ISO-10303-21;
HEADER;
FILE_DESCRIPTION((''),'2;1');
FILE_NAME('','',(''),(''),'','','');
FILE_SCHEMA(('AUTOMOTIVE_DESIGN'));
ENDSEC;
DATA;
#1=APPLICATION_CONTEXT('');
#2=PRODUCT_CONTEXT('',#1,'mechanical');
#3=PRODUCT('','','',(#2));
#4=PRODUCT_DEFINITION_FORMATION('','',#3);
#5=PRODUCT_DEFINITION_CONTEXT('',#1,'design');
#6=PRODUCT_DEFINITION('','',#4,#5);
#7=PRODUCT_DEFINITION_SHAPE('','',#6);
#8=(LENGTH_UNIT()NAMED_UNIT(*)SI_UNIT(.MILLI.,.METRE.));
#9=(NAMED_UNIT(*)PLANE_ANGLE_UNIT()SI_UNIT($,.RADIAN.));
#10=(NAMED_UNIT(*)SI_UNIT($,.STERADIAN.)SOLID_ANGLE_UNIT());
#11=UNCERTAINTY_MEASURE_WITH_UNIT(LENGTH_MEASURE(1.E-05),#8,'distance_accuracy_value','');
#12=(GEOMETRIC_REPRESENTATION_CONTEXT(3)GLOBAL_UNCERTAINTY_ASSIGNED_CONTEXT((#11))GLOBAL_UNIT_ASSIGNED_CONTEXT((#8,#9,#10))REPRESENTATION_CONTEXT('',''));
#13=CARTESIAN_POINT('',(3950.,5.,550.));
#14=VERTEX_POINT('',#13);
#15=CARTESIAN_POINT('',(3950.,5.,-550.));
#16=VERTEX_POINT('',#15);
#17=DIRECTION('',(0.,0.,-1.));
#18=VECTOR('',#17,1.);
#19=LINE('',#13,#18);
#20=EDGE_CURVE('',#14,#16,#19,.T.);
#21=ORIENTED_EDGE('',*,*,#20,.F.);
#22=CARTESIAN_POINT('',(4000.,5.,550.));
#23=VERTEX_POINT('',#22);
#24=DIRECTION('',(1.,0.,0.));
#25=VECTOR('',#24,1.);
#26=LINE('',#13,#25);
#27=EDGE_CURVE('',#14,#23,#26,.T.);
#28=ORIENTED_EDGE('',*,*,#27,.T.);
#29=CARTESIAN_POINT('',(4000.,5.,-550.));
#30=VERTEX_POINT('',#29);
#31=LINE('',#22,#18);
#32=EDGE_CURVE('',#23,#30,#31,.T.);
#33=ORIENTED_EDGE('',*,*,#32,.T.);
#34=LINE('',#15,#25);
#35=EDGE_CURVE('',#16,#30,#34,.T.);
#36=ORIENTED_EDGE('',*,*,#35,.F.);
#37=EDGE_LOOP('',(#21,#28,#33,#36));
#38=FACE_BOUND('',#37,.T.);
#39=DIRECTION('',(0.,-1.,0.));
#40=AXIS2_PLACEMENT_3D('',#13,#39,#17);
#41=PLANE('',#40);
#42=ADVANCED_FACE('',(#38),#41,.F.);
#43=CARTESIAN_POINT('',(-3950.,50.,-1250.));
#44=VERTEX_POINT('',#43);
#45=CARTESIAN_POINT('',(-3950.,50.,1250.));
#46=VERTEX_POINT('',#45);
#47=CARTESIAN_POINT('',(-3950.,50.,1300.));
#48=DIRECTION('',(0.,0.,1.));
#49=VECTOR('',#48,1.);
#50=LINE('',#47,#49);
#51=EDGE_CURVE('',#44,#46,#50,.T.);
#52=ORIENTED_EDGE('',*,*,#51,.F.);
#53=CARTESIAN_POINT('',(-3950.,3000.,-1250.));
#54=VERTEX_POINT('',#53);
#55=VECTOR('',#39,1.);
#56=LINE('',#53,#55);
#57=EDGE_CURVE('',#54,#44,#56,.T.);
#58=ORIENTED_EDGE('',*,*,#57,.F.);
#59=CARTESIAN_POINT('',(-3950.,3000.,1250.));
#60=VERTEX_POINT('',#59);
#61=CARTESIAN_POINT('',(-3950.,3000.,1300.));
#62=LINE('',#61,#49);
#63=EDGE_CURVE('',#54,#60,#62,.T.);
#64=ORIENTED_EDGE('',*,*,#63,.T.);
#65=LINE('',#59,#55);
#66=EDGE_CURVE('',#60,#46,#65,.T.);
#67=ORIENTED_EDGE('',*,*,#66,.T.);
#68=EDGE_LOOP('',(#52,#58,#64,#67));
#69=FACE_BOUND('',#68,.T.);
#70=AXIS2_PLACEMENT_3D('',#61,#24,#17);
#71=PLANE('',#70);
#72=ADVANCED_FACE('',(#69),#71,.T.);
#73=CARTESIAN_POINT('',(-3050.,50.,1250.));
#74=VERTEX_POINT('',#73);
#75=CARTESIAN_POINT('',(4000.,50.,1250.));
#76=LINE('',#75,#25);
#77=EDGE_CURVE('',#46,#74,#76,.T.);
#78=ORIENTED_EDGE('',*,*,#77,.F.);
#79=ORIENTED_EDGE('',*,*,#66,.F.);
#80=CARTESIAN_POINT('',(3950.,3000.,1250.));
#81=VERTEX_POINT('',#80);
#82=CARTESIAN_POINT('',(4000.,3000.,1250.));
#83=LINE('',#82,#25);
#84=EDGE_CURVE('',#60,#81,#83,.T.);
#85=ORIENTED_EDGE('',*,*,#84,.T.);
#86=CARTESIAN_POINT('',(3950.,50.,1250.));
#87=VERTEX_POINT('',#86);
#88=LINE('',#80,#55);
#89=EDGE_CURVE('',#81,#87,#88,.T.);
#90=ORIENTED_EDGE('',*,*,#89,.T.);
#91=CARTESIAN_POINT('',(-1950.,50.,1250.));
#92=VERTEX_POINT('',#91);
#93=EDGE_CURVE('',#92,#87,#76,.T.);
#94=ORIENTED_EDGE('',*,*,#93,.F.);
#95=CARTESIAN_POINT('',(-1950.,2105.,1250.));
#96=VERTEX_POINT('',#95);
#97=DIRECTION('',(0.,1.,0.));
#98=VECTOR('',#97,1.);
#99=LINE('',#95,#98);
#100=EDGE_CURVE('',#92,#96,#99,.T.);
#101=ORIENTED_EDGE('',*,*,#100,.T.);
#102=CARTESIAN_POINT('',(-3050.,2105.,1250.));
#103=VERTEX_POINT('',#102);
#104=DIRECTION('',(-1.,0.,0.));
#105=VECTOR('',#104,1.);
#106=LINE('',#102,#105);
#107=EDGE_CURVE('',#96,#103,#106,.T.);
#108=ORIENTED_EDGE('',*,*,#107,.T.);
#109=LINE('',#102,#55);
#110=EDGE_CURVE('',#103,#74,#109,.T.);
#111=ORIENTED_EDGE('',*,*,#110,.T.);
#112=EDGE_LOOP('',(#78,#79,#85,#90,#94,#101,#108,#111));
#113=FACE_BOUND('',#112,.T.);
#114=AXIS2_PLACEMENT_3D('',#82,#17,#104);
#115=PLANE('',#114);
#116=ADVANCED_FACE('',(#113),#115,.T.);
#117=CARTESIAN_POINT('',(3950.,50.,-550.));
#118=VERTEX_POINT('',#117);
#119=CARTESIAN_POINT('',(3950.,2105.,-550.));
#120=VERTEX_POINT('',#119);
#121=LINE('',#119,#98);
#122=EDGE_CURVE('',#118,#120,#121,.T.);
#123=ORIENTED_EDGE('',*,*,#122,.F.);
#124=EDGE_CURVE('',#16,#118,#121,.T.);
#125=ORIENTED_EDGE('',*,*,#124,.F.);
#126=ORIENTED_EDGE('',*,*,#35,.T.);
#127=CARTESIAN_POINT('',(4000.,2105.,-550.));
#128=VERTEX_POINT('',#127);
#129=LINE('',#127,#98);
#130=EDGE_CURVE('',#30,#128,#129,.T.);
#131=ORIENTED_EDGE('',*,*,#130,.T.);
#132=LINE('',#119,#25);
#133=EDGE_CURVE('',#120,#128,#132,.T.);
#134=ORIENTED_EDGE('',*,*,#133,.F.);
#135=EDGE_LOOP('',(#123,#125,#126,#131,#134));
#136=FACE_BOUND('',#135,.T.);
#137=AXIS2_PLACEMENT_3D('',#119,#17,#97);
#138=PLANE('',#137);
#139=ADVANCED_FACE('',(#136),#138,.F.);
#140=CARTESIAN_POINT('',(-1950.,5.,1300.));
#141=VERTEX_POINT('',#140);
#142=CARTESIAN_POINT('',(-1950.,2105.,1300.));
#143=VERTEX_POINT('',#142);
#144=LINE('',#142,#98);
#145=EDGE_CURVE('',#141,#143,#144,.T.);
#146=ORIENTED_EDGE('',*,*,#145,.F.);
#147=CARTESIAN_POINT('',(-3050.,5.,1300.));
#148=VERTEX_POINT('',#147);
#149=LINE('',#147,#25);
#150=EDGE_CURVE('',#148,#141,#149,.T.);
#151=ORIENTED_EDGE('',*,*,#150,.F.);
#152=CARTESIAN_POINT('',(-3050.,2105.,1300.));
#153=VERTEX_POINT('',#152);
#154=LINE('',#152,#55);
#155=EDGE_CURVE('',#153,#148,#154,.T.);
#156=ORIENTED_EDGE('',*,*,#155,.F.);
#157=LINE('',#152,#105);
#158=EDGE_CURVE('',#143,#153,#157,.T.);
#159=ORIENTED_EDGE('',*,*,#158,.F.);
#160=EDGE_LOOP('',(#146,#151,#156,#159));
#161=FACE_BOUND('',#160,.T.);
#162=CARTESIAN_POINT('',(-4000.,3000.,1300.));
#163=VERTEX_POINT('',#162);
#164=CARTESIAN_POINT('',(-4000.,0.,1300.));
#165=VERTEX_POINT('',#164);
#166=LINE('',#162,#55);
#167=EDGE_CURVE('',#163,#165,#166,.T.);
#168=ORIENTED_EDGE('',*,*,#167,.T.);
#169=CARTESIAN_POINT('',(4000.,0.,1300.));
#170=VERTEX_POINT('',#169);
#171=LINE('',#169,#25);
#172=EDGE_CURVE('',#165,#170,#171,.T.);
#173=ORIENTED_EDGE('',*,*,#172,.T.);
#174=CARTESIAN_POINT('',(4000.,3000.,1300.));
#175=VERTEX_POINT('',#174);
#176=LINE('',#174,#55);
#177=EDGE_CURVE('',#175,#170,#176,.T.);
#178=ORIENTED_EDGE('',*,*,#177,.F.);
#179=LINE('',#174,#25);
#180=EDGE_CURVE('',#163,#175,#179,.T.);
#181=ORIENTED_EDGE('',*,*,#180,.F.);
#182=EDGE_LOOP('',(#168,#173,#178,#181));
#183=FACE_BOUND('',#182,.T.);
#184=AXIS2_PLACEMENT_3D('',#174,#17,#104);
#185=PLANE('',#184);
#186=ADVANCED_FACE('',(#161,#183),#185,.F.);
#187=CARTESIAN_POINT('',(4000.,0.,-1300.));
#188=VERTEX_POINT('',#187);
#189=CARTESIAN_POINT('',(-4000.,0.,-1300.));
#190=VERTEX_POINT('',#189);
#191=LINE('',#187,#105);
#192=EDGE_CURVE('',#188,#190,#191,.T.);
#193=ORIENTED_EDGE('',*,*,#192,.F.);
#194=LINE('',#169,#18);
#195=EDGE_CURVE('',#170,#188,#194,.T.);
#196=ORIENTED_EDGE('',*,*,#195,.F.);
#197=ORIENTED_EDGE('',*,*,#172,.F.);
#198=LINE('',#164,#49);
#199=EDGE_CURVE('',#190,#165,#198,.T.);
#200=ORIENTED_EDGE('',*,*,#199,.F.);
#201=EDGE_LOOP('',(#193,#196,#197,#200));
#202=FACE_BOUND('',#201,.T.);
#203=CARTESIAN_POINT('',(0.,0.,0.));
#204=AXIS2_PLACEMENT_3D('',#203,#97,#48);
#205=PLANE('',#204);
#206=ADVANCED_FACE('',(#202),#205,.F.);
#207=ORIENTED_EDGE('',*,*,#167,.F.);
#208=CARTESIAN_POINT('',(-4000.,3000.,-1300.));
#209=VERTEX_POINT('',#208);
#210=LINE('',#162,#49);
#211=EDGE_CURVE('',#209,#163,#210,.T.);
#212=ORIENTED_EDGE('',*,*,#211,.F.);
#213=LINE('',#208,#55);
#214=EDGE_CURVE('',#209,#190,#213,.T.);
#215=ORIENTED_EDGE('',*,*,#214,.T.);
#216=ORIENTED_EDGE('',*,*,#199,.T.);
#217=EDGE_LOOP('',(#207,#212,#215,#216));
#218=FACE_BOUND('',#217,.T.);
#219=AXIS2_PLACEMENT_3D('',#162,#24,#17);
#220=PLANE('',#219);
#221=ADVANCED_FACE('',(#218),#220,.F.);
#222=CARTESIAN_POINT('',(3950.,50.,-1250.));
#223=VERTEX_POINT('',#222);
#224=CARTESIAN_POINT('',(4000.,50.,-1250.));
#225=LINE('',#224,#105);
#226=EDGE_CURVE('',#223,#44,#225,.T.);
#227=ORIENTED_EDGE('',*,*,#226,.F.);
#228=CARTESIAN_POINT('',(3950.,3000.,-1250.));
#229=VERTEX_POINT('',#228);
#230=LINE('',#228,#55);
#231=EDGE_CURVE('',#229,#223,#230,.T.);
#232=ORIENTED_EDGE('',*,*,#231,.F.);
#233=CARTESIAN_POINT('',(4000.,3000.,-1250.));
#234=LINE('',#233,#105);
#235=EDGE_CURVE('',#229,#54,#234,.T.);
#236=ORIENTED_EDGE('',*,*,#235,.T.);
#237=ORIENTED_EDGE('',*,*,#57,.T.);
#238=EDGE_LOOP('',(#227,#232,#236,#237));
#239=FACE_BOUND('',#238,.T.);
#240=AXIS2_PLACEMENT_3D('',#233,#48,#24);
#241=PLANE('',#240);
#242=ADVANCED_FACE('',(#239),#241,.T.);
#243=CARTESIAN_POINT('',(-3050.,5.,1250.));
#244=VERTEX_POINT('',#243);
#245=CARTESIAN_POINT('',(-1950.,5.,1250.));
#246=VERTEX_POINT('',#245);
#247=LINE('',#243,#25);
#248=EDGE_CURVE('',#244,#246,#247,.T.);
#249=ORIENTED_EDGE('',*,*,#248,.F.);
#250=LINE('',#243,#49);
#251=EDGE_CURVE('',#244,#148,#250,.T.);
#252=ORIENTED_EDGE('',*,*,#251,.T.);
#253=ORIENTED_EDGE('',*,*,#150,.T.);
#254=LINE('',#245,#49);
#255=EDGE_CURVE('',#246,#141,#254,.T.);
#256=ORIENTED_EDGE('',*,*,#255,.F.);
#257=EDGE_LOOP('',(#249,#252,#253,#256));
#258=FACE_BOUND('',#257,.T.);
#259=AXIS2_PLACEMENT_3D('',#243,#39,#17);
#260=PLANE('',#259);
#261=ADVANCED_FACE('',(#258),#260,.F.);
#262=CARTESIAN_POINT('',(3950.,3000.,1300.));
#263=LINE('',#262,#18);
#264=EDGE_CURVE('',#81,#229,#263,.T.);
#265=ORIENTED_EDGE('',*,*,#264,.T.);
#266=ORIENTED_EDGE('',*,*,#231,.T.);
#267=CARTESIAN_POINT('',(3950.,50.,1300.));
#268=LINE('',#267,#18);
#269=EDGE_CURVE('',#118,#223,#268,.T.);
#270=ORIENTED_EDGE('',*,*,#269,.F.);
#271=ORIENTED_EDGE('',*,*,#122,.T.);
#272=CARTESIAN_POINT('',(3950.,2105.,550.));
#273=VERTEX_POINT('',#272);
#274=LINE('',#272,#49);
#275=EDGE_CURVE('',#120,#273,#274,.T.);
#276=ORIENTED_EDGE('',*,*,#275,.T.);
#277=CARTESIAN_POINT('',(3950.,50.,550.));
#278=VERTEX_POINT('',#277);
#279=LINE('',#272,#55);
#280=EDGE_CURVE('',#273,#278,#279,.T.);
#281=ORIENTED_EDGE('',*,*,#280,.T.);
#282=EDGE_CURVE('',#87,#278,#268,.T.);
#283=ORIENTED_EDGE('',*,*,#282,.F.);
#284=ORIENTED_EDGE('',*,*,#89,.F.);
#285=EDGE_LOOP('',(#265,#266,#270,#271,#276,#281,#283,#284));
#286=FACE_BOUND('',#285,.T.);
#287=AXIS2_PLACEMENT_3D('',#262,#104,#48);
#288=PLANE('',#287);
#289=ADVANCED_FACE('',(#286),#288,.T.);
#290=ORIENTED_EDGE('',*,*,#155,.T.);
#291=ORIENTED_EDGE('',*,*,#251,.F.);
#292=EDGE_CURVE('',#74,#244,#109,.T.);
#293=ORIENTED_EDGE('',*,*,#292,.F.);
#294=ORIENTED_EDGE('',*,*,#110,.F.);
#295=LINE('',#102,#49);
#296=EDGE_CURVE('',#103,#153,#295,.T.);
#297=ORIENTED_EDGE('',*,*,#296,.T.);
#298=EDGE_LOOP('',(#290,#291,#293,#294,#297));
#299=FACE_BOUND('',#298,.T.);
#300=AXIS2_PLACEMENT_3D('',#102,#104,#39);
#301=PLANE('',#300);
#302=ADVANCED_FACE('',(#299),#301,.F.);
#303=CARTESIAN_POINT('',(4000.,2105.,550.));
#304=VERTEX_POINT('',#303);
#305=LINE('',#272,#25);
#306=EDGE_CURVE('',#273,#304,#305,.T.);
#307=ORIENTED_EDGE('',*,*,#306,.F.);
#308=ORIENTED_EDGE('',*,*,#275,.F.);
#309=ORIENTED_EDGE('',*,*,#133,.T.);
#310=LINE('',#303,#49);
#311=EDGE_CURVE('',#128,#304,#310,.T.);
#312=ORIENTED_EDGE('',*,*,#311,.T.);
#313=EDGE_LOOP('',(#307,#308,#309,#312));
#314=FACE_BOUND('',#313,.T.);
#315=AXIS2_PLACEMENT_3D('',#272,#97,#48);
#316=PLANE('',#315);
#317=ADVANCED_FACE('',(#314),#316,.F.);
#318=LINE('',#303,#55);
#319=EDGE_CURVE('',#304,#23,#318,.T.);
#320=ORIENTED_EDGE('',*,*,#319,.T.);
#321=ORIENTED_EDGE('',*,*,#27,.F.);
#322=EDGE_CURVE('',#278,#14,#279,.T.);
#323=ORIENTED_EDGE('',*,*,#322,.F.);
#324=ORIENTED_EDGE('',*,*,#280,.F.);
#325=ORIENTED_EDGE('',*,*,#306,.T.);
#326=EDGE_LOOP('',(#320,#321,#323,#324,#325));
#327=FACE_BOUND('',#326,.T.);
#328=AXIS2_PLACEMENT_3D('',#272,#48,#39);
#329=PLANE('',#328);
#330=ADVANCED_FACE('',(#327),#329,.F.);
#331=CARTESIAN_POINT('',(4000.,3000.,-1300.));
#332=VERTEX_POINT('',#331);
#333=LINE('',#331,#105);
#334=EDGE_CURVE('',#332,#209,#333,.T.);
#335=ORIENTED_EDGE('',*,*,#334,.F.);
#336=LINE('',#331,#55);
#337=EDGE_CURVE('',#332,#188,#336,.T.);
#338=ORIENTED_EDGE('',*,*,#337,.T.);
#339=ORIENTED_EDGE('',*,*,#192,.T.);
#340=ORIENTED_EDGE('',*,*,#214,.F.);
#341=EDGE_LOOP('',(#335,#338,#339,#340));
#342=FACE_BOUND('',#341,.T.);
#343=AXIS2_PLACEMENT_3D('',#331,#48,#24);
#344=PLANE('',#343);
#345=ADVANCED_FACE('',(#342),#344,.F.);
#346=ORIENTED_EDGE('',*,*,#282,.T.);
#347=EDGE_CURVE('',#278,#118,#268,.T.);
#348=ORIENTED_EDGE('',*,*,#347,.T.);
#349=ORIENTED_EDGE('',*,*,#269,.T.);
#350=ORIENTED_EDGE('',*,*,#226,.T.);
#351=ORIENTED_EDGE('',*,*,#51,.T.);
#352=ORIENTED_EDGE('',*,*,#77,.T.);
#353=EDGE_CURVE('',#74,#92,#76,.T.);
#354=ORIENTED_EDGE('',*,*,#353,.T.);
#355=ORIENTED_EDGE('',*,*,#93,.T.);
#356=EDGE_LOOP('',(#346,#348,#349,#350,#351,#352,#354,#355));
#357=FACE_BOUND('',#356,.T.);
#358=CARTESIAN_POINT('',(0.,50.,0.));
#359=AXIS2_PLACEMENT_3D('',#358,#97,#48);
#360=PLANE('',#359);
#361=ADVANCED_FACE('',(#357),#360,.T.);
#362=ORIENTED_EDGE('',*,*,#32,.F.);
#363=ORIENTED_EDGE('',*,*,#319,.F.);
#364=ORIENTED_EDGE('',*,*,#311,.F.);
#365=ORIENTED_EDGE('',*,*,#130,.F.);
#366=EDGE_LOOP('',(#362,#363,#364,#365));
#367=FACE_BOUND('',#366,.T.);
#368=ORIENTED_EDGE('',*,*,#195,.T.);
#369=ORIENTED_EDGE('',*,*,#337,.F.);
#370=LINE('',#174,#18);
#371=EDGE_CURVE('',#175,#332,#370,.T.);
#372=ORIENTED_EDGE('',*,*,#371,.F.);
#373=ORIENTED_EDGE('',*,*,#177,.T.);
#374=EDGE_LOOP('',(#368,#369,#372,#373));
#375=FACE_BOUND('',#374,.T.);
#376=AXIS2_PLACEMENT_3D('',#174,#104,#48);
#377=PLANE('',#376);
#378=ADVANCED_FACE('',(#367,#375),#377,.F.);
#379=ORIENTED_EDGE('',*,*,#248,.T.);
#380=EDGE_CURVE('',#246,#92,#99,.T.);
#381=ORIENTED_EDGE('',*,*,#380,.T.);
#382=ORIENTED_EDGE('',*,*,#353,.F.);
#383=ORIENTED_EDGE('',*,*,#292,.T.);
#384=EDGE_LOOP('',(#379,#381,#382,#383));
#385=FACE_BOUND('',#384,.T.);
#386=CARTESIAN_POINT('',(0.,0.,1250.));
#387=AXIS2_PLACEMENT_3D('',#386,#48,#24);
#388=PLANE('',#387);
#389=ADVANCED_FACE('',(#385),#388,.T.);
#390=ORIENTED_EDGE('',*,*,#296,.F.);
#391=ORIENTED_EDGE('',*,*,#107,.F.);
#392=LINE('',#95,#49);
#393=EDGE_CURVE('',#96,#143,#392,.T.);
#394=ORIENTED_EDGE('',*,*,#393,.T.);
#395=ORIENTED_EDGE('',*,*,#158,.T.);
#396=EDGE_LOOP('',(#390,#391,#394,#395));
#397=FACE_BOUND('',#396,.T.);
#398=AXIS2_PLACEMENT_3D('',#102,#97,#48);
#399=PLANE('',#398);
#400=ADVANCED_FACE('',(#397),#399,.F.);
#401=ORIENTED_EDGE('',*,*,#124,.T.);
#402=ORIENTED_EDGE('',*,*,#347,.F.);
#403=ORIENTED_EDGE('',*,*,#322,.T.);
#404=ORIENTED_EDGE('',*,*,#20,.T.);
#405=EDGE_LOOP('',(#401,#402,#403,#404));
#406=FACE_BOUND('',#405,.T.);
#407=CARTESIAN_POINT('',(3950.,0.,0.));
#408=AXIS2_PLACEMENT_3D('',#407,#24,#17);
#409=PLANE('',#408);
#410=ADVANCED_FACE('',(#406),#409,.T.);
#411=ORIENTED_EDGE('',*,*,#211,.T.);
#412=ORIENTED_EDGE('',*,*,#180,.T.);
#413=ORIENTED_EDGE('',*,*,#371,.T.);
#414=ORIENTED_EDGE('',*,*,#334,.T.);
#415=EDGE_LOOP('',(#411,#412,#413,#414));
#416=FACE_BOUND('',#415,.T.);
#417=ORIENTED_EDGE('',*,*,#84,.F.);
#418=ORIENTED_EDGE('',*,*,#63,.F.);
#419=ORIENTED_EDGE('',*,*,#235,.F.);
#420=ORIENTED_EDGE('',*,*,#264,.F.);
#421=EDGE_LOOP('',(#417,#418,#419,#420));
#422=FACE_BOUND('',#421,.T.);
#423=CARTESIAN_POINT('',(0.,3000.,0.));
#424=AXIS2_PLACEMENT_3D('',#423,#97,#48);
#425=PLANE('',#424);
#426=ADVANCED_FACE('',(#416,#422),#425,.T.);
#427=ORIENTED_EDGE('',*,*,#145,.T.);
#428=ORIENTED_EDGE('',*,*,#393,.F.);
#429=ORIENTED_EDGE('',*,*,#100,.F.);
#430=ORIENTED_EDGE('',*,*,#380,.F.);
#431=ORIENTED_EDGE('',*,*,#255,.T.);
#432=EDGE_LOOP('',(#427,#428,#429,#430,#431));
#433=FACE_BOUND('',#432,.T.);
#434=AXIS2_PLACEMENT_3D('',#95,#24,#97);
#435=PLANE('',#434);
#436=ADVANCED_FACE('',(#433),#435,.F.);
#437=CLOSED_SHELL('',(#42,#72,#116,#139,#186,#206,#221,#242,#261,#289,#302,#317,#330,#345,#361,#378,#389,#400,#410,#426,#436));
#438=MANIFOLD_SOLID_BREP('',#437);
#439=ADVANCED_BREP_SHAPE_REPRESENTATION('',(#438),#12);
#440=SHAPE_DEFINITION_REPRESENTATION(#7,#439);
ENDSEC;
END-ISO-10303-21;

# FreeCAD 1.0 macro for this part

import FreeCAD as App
import Part
import Sketcher
from FreeCAD import Vector
Q = App.Units.Quantity


def faces_at(feature, points):
    """Names of the faces that lie closest to the given points."""
    faces = feature.Shape.Faces
    near = lambda p: min(range(len(faces)), key=lambda i: faces[i].distToShape(Part.Vertex(*p))[0])
    return sorted({f"Face{near(p) + 1}" for p in points})

doc = App.newDocument("Part")
body = doc.addObject("PartDesign::Body", "Body")

sketch1 = doc.addObject("Sketcher::SketchObject", "Sketch")
body.addObject(sketch1)
sketch1.AttachmentSupport = (doc.XZ_Plane, [""])
sketch1.MapMode = "FlatFace"
sketch1.addGeometry(Part.LineSegment(Vector(-4000, -1300, 0), Vector(-4000, 1300, 0)), False)
sketch1.addGeometry(Part.LineSegment(Vector(-4000, 1300, 0), Vector(4000, 1300, 0)), False)
sketch1.addGeometry(Part.LineSegment(Vector(4000, 1300, 0), Vector(4000, -1300, 0)), False)
sketch1.addGeometry(Part.LineSegment(Vector(4000, -1300, 0), Vector(-4000, -1300, 0)), False)
sketch1.addConstraint(Sketcher.Constraint("Coincident", 0, 2, 1, 1))
sketch1.addConstraint(Sketcher.Constraint("Coincident", 1, 2, 2, 1))
sketch1.addConstraint(Sketcher.Constraint("Coincident", 2, 2, 3, 1))
sketch1.addConstraint(Sketcher.Constraint("Coincident", 3, 2, 0, 1))
sketch1.addConstraint(Sketcher.Constraint("Vertical", 0))
sketch1.addConstraint(Sketcher.Constraint("Horizontal", 1))
sketch1.addConstraint(Sketcher.Constraint("Vertical", 2))
sketch1.addConstraint(Sketcher.Constraint("Horizontal", 3))
sketch1.addConstraint(Sketcher.Constraint("Symmetric", 0, 2, 2, 2, -1, 1))
sketch1.addConstraint(Sketcher.Constraint("DistanceX", 1, 1, 1, 2, Q("8000 mm")))
sketch1.addConstraint(Sketcher.Constraint("DistanceY", 0, 1, 0, 2, Q("2600 mm")))
pad1 = doc.addObject("PartDesign::Pad", "Pad")
body.addObject(pad1)
pad1.Profile = sketch1
pad1.Length = 3000
pad1.Reversed = True
doc.recompute()

thickness = doc.addObject("PartDesign::Thickness", "Thickness")
body.addObject(thickness)
thickness.Base = (pad1, faces_at(pad1, [(0, 3000, 0)]))
thickness.Value = 50
thickness.Reversed = True
thickness.Join = "Intersection"

sketch2 = doc.addObject("Sketcher::SketchObject", "Sketch001")
body.addObject(sketch2)
sketch2.AttachmentSupport = (doc.XY_Plane, [""])
sketch2.MapMode = "FlatFace"
sketch2.AttachmentOffset = App.Placement(Vector(0, 0, 1300), App.Rotation())
sketch2.addGeometry(Part.LineSegment(Vector(-3050, 2105, 0), Vector(-3050, 5, 0)), False)
sketch2.addGeometry(Part.LineSegment(Vector(-3050, 5, 0), Vector(-1950, 5, 0)), False)
sketch2.addGeometry(Part.LineSegment(Vector(-1950, 5, 0), Vector(-1950, 2105, 0)), False)
sketch2.addGeometry(Part.LineSegment(Vector(-1950, 2105, 0), Vector(-3050, 2105, 0)), False)
sketch2.addConstraint(Sketcher.Constraint("Coincident", 0, 2, 1, 1))
sketch2.addConstraint(Sketcher.Constraint("Coincident", 1, 2, 2, 1))
sketch2.addConstraint(Sketcher.Constraint("Coincident", 2, 2, 3, 1))
sketch2.addConstraint(Sketcher.Constraint("Coincident", 3, 2, 0, 1))
sketch2.addConstraint(Sketcher.Constraint("Vertical", 0))
sketch2.addConstraint(Sketcher.Constraint("Horizontal", 1))
sketch2.addConstraint(Sketcher.Constraint("Vertical", 2))
sketch2.addConstraint(Sketcher.Constraint("Horizontal", 3))
sketch2.addConstraint(Sketcher.Constraint("DistanceX", 1, 1, 1, 2, Q("1100 mm")))
sketch2.addConstraint(Sketcher.Constraint("DistanceY", 0, 2, 0, 1, Q("2100 mm")))
sketch2.addConstraint(Sketcher.Constraint("DistanceX", 0, 2, -1, 1, Q("3050 mm")))
sketch2.addConstraint(Sketcher.Constraint("DistanceY", -1, 1, 0, 2, Q("5 mm")))
pocket1 = doc.addObject("PartDesign::Pocket", "Pocket")
body.addObject(pocket1)
pocket1.Profile = sketch2
pocket1.Length = 50

sketch3 = doc.addObject("Sketcher::SketchObject", "Sketch002")
body.addObject(sketch3)
sketch3.AttachmentSupport = (doc.YZ_Plane, [""])
sketch3.MapMode = "FlatFace"
sketch3.AttachmentOffset = App.Placement(Vector(0, 0, 4000), App.Rotation())
sketch3.addGeometry(Part.LineSegment(Vector(2105, 550, 0), Vector(5, 550, 0)), False)
sketch3.addGeometry(Part.LineSegment(Vector(5, 550, 0), Vector(5, -550, 0)), False)
sketch3.addGeometry(Part.LineSegment(Vector(5, -550, 0), Vector(2105, -550, 0)), False)
sketch3.addGeometry(Part.LineSegment(Vector(2105, -550, 0), Vector(2105, 550, 0)), False)
sketch3.addConstraint(Sketcher.Constraint("Coincident", 0, 2, 1, 1))
sketch3.addConstraint(Sketcher.Constraint("Coincident", 1, 2, 2, 1))
sketch3.addConstraint(Sketcher.Constraint("Coincident", 2, 2, 3, 1))
sketch3.addConstraint(Sketcher.Constraint("Coincident", 3, 2, 0, 1))
sketch3.addConstraint(Sketcher.Constraint("Horizontal", 0))
sketch3.addConstraint(Sketcher.Constraint("Vertical", 1))
sketch3.addConstraint(Sketcher.Constraint("Horizontal", 2))
sketch3.addConstraint(Sketcher.Constraint("Vertical", 3))
sketch3.addConstraint(Sketcher.Constraint("DistanceX", 0, 2, 0, 1, Q("2100 mm")))
sketch3.addConstraint(Sketcher.Constraint("DistanceY", 1, 2, 1, 1, Q("1100 mm")))
sketch3.addConstraint(Sketcher.Constraint("DistanceX", -1, 1, 0, 2, Q("5 mm")))
sketch3.addConstraint(Sketcher.Constraint("DistanceY", -1, 1, 0, 2, Q("550 mm")))
pocket2 = doc.addObject("PartDesign::Pocket", "Pocket001")
body.addObject(pocket2)
pocket2.Profile = sketch3
pocket2.Length = 50

doc.recompute()
